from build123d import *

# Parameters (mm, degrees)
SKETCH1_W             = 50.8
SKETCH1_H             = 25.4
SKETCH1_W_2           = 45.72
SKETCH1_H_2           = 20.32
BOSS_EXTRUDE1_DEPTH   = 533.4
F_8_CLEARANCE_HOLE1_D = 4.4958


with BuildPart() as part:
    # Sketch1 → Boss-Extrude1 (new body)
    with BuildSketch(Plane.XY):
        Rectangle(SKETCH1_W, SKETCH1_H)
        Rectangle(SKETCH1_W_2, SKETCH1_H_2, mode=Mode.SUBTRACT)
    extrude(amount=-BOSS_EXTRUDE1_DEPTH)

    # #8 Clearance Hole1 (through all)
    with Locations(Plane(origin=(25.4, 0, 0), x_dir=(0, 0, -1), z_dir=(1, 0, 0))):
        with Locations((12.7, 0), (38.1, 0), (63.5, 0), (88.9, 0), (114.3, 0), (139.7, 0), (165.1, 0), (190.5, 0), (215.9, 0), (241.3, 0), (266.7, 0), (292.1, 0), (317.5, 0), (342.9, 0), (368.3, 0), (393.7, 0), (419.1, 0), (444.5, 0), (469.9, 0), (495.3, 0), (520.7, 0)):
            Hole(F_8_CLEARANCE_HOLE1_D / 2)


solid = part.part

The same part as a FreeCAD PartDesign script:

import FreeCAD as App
import Part
import Sketcher
Q = App.Units.Quantity

doc = App.newDocument("Part")
body = doc.addObject("PartDesign::Body", "Body")

# Sketch on XY plane
sketch1 = body.newObject("Sketcher::SketchObject", "Sketch")
sketch1.AttachmentSupport = (doc.getObject("XY_Plane"), [""])
sketch1.MapMode = "FlatFace"
sketch1.addGeometry([
    Part.LineSegment(App.Vector(-25, 13, 0), App.Vector(-25, -13, 0)),  # 0
    Part.LineSegment(App.Vector(-25, -13, 0), App.Vector(25, -13, 0)),  # 1
    Part.LineSegment(App.Vector(25, -13, 0), App.Vector(25, 13, 0)),  # 2
    Part.LineSegment(App.Vector(25, 13, 0), App.Vector(-25, 13, 0)),  # 3
    Part.LineSegment(App.Vector(23, -10, 0), App.Vector(-23, -10, 0)),  # 4
    Part.LineSegment(App.Vector(-23, -10, 0), App.Vector(-23, 10, 0)),  # 5
    Part.LineSegment(App.Vector(-23, 10, 0), App.Vector(23, 10, 0)),  # 6
    Part.LineSegment(App.Vector(23, 10, 0), App.Vector(23, -10, 0)),  # 7
], False)
sketch1.addConstraint([
    Sketcher.Constraint("Coincident", 0, 2, 1, 1),
    Sketcher.Constraint("Coincident", 1, 2, 2, 1),
    Sketcher.Constraint("Coincident", 2, 2, 3, 1),
    Sketcher.Constraint("Coincident", 3, 2, 0, 1),
    Sketcher.Constraint("Coincident", 4, 2, 5, 1),
    Sketcher.Constraint("Coincident", 5, 2, 6, 1),
    Sketcher.Constraint("Coincident", 6, 2, 7, 1),
    Sketcher.Constraint("Coincident", 7, 2, 4, 1),
    Sketcher.Constraint("Vertical", 0),
    Sketcher.Constraint("Horizontal", 1),
    Sketcher.Constraint("Vertical", 2),
    Sketcher.Constraint("Horizontal", 3),
    Sketcher.Constraint("Horizontal", 4),
    Sketcher.Constraint("Vertical", 5),
    Sketcher.Constraint("Horizontal", 6),
    Sketcher.Constraint("Vertical", 7),
    Sketcher.Constraint("Symmetric", 0, 2, 2, 2, -1, 1),
    Sketcher.Constraint("Symmetric", 4, 2, 6, 2, -1, 1),
    Sketcher.Constraint("DistanceX", 1, 1, 1, 2, Q("2 in")),
    Sketcher.Constraint("DistanceY", 0, 2, 0, 1, Q("1 in")),
    Sketcher.Constraint("DistanceX", 4, 2, 4, 1, Q("1.8 in")),
    Sketcher.Constraint("DistanceY", 5, 1, 5, 2, Q("0.8 in")),
])
pad1 = body.newObject("PartDesign::Pad", "Pad")
pad1.Profile = sketch1
pad1.Length = Q("21 in")
pad1.Reversed = True

# Sketch on YZ plane
sketch2 = body.newObject("Sketcher::SketchObject", "Sketch001")
sketch2.AttachmentSupport = (doc.getObject("YZ_Plane"), [""])
sketch2.MapMode = "FlatFace"
sketch2.AttachmentOffset = App.Placement(App.Vector(0, 0, 1 * 25.4), App.Rotation())
sketch2.addGeometry([
    Part.Circle(App.Vector(0, -12.7, 0), App.Vector(0, 0, 1), 2.2),  # 0
    Part.Circle(App.Vector(0, -38.1, 0), App.Vector(0, 0, 1), 2.2),  # 1
    Part.Circle(App.Vector(0, -63.5, 0), App.Vector(0, 0, 1), 2.2),  # 2
    Part.Circle(App.Vector(0, -88.9, 0), App.Vector(0, 0, 1), 2.2),  # 3
    Part.Circle(App.Vector(0, -114.3, 0), App.Vector(0, 0, 1), 2.2),  # 4
    Part.Circle(App.Vector(0, -139.7, 0), App.Vector(0, 0, 1), 2.2),  # 5
    Part.Circle(App.Vector(0, -165.1, 0), App.Vector(0, 0, 1), 2.2),  # 6
    Part.Circle(App.Vector(0, -190.5, 0), App.Vector(0, 0, 1), 2.2),  # 7
    Part.Circle(App.Vector(0, -215.9, 0), App.Vector(0, 0, 1), 2.2),  # 8
    Part.Circle(App.Vector(0, -241.3, 0), App.Vector(0, 0, 1), 2.2),  # 9
    Part.Circle(App.Vector(0, -266.7, 0), App.Vector(0, 0, 1), 2.2),  # 10
    Part.Circle(App.Vector(0, -292.1, 0), App.Vector(0, 0, 1), 2.2),  # 11
    Part.Circle(App.Vector(0, -317.5, 0), App.Vector(0, 0, 1), 2.2),  # 12
    Part.Circle(App.Vector(0, -342.9, 0), App.Vector(0, 0, 1), 2.2),  # 13
    Part.Circle(App.Vector(0, -368.3, 0), App.Vector(0, 0, 1), 2.2),  # 14
    Part.Circle(App.Vector(0, -393.7, 0), App.Vector(0, 0, 1), 2.2),  # 15
    Part.Circle(App.Vector(0, -419.1, 0), App.Vector(0, 0, 1), 2.2),  # 16
    Part.Circle(App.Vector(0, -444.5, 0), App.Vector(0, 0, 1), 2.2),  # 17
    Part.Circle(App.Vector(0, -469.9, 0), App.Vector(0, 0, 1), 2.2),  # 18
    Part.Circle(App.Vector(0, -495.3, 0), App.Vector(0, 0, 1), 2.2),  # 19
    Part.Circle(App.Vector(0, -520.7, 0), App.Vector(0, 0, 1), 2.2),  # 20
], False)
sketch2.addConstraint([
    Sketcher.Constraint("Equal", 0, 1),
    Sketcher.Constraint("Equal", 1, 2),
    Sketcher.Constraint("Equal", 2, 3),
    Sketcher.Constraint("Equal", 3, 4),
    Sketcher.Constraint("Equal", 4, 5),
    Sketcher.Constraint("Equal", 5, 6),
    Sketcher.Constraint("Equal", 6, 7),
    Sketcher.Constraint("Equal", 7, 8),
    Sketcher.Constraint("Equal", 8, 9),
    Sketcher.Constraint("Equal", 9, 10),
    Sketcher.Constraint("Equal", 10, 11),
    Sketcher.Constraint("Equal", 11, 12),
    Sketcher.Constraint("Equal", 12, 13),
    Sketcher.Constraint("Equal", 13, 14),
    Sketcher.Constraint("Equal", 14, 15),
    Sketcher.Constraint("Equal", 15, 16),
    Sketcher.Constraint("Equal", 16, 17),
    Sketcher.Constraint("Equal", 17, 18),
    Sketcher.Constraint("Equal", 18, 19),
    Sketcher.Constraint("Equal", 19, 20),
    Sketcher.Constraint("PointOnObject", 0, 3, -2),
    Sketcher.Constraint("PointOnObject", 1, 3, -2),
    Sketcher.Constraint("PointOnObject", 2, 3, -2),
    Sketcher.Constraint("PointOnObject", 3, 3, -2),
    Sketcher.Constraint("PointOnObject", 4, 3, -2),
    Sketcher.Constraint("PointOnObject", 5, 3, -2),
    Sketcher.Constraint("PointOnObject", 6, 3, -2),
    Sketcher.Constraint("PointOnObject", 7, 3, -2),
    Sketcher.Constraint("PointOnObject", 8, 3, -2),
    Sketcher.Constraint("PointOnObject", 9, 3, -2),
    Sketcher.Constraint("PointOnObject", 10, 3, -2),
    Sketcher.Constraint("PointOnObject", 11, 3, -2),
    Sketcher.Constraint("PointOnObject", 12, 3, -2),
    Sketcher.Constraint("PointOnObject", 13, 3, -2),
    Sketcher.Constraint("PointOnObject", 14, 3, -2),
    Sketcher.Constraint("PointOnObject", 15, 3, -2),
    Sketcher.Constraint("PointOnObject", 16, 3, -2),
    Sketcher.Constraint("PointOnObject", 17, 3, -2),
    Sketcher.Constraint("PointOnObject", 18, 3, -2),
    Sketcher.Constraint("PointOnObject", 19, 3, -2),
    Sketcher.Constraint("PointOnObject", 20, 3, -2),
    Sketcher.Constraint("Diameter", 0, Q("0.177 in")),
    Sketcher.Constraint("DistanceY", 1, 3, 0, 3, Q("1 in")),
    Sketcher.Constraint("DistanceY", 2, 3, 1, 3, Q("1 in")),
    Sketcher.Constraint("DistanceY", 3, 3, 2, 3, Q("1 in")),
    Sketcher.Constraint("DistanceY", 4, 3, 3, 3, Q("1 in")),
    Sketcher.Constraint("DistanceY", 5, 3, 4, 3, Q("1 in")),
    Sketcher.Constraint("DistanceY", 6, 3, 5, 3, Q("1 in")),
    Sketcher.Constraint("DistanceY", 7, 3, 6, 3, Q("1 in")),
    Sketcher.Constraint("DistanceY", 8, 3, 7, 3, Q("1 in")),
    Sketcher.Constraint("DistanceY", 9, 3, 8, 3, Q("1 in")),
    Sketcher.Constraint("DistanceY", 10, 3, 9, 3, Q("1 in")),
    Sketcher.Constraint("DistanceY", 11, 3, 10, 3, Q("1 in")),
    Sketcher.Constraint("DistanceY", 12, 3, 11, 3, Q("1 in")),
    Sketcher.Constraint("DistanceY", 13, 3, 12, 3, Q("1 in")),
    Sketcher.Constraint("DistanceY", 14, 3, 13, 3, Q("1 in")),
    Sketcher.Constraint("DistanceY", 15, 3, 14, 3, Q("1 in")),
    Sketcher.Constraint("DistanceY", 16, 3, 15, 3, Q("1 in")),
    Sketcher.Constraint("DistanceY", 17, 3, 16, 3, Q("1 in")),
    Sketcher.Constraint("DistanceY", 18, 3, 17, 3, Q("1 in")),
    Sketcher.Constraint("DistanceY", 19, 3, 18, 3, Q("1 in")),
    Sketcher.Constraint("DistanceY", 20, 3, 19, 3, Q("1 in")),
    Sketcher.Constraint("DistanceY", 0, 3, -1, 1, Q("0.5 in")),
])
doc.recompute()
hole = body.newObject("PartDesign::Hole", "Hole")
hole.Profile = sketch2
hole.ThreadType = "None"
hole.Diameter = Q("0.177 in")
hole.DepthType = "ThroughAll"

doc.recompute()
